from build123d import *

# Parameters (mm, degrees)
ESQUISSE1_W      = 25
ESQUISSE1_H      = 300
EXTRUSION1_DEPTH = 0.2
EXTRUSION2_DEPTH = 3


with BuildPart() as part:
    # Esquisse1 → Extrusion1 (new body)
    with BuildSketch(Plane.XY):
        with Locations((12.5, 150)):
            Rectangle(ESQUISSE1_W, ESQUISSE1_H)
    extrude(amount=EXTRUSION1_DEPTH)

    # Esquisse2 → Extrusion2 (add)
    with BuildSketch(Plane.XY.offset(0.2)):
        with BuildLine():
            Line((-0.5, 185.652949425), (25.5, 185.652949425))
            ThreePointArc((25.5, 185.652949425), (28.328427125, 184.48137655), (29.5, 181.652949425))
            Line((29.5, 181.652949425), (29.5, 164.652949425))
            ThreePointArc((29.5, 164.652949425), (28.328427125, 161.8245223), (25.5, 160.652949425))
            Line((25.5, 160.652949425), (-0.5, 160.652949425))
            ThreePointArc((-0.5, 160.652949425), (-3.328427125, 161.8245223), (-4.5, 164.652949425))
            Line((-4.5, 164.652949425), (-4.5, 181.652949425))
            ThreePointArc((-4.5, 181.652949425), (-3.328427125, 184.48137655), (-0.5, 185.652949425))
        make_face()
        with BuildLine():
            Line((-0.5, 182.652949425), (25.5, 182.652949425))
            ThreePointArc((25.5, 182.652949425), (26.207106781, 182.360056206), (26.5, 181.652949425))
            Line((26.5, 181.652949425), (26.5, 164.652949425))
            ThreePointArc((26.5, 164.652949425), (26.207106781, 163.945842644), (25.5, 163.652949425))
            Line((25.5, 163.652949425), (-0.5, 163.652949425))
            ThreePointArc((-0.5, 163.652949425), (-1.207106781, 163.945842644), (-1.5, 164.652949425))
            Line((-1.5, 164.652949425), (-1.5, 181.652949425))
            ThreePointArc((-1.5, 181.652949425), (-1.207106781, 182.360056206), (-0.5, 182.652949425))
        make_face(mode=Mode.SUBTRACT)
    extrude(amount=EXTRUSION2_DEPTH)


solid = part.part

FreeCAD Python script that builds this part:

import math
import FreeCAD as App
import Part
import Sketcher

doc = App.newDocument("Part")
body = doc.addObject("PartDesign::Body", "Body")

sketch1 = body.newObject("Sketcher::SketchObject", "Sketch")
sketch1.AttachmentSupport = (doc.getObject("XY_Plane"), [""])
sketch1.MapMode = "FlatFace"
sketch1.addGeometry([
    Part.LineSegment(App.Vector(0, 300, 0), App.Vector(0, 0, 0)),
    Part.LineSegment(App.Vector(0, 0, 0), App.Vector(25, 0, 0)),
    Part.LineSegment(App.Vector(25, 0, 0), App.Vector(25, 300, 0)),
    Part.LineSegment(App.Vector(25, 300, 0), App.Vector(0, 300, 0)),
], False)
sketch1.addConstraint([
    Sketcher.Constraint("Coincident", 0, 2, 1, 1),
    Sketcher.Constraint("Coincident", 1, 2, 2, 1),
    Sketcher.Constraint("Coincident", 2, 2, 3, 1),
    Sketcher.Constraint("Coincident", 3, 2, 0, 1),
    Sketcher.Constraint("Vertical", 0),
    Sketcher.Constraint("Horizontal", 1),
    Sketcher.Constraint("Vertical", 2),
    Sketcher.Constraint("Horizontal", 3),
    Sketcher.Constraint("Coincident", 0, 2, -1, 1),
    Sketcher.Constraint("DistanceX", 1, 1, 1, 2, 25.0),
    Sketcher.Constraint("DistanceY", 0, 2, 0, 1, 300.0),
])
pad1 = body.newObject("PartDesign::Pad", "Pad")
pad1.Profile = sketch1
pad1.Length = 0.2

sketch2 = body.newObject("Sketcher::SketchObject", "Sketch001")
sketch2.AttachmentSupport = (doc.getObject("XY_Plane"), [""])
sketch2.MapMode = "FlatFace"
sketch2.AttachmentOffset = App.Placement(App.Vector(0, 0, 0.2), App.Rotation())
sketch2.addGeometry([
    Part.LineSegment(App.Vector(25.5, 185.7, 0), App.Vector(-0.5, 185.7, 0)),
    Part.ArcOfCircle(Part.Circle(App.Vector(-0.5, 181.7, 0), App.Vector(0, 0, 1), 4), math.radians(90), math.radians(180)),
    Part.LineSegment(App.Vector(-4.5, 181.7, 0), App.Vector(-4.5, 164.7, 0)),
    Part.ArcOfCircle(Part.Circle(App.Vector(-0.5, 164.7, 0), App.Vector(0, 0, 1), 4), math.radians(180), math.radians(270)),
    Part.LineSegment(App.Vector(-0.5, 160.7, 0), App.Vector(25.5, 160.7, 0)),
    Part.ArcOfCircle(Part.Circle(App.Vector(25.5, 164.7, 0), App.Vector(0, 0, 1), 4), math.radians(-90), math.radians(0)),
    Part.LineSegment(App.Vector(29.5, 164.7, 0), App.Vector(29.5, 181.7, 0)),
    Part.ArcOfCircle(Part.Circle(App.Vector(25.5, 181.7, 0), App.Vector(0, 0, 1), 4), math.radians(0), math.radians(90)),
    Part.LineSegment(App.Vector(-0.5, 182.7, 0), App.Vector(25.5, 182.7, 0)),
    Part.ArcOfCircle(Part.Circle(App.Vector(25.5, 181.7, 0), App.Vector(0, 0, 1), 1), math.radians(0), math.radians(90)),
    Part.LineSegment(App.Vector(26.5, 181.7, 0), App.Vector(26.5, 164.7, 0)),
    Part.ArcOfCircle(Part.Circle(App.Vector(25.5, 164.7, 0), App.Vector(0, 0, 1), 1), math.radians(-90), math.radians(0)),
    Part.LineSegment(App.Vector(25.5, 163.7, 0), App.Vector(-0.5, 163.7, 0)),
    Part.ArcOfCircle(Part.Circle(App.Vector(-0.5, 164.7, 0), App.Vector(0, 0, 1), 1), math.radians(-180), math.radians(-90)),
    Part.LineSegment(App.Vector(-1.5, 164.7, 0), App.Vector(-1.5, 181.7, 0)),
    Part.ArcOfCircle(Part.Circle(App.Vector(-0.5, 181.7, 0), App.Vector(0, 0, 1), 1), math.radians(90), math.radians(180)),
], False)
sketch2.addConstraint([
    Sketcher.Constraint("Tangent", 0, 2, 1, 1),
    Sketcher.Constraint("Tangent", 1, 2, 2, 1),
    Sketcher.Constraint("Tangent", 2, 2, 3, 1),
    Sketcher.Constraint("Tangent", 3, 2, 4, 1),
    Sketcher.Constraint("Tangent", 4, 2, 5, 1),
    Sketcher.Constraint("Tangent", 5, 2, 6, 1),
    Sketcher.Constraint("Tangent", 6, 2, 7, 1),
    Sketcher.Constraint("Tangent", 7, 2, 0, 1),
    Sketcher.Constraint("Tangent", 8, 2, 9, 2),
    Sketcher.Constraint("Tangent", 9, 1, 10, 1),
    Sketcher.Constraint("Tangent", 10, 2, 11, 2),
    Sketcher.Constraint("Tangent", 11, 1, 12, 1),
    Sketcher.Constraint("Tangent", 12, 2, 13, 2),
    Sketcher.Constraint("Tangent", 13, 1, 14, 1),
    Sketcher.Constraint("Tangent", 14, 2, 15, 2),
    Sketcher.Constraint("Tangent", 15, 1, 8, 1),
    Sketcher.Constraint("Horizontal", 0),
    Sketcher.Constraint("Vertical", 2),
    Sketcher.Constraint("Horizontal", 4),
    Sketcher.Constraint("Vertical", 6),
    Sketcher.Constraint("Horizontal", 8),
    Sketcher.Constraint("Vertical", 10),
    Sketcher.Constraint("Horizontal", 12),
    Sketcher.Constraint("Vertical", 14),
    Sketcher.Constraint("Coincident", 9, 3, 7, 3),
    Sketcher.Constraint("Coincident", 11, 3, 5, 3),
    Sketcher.Constraint("Coincident", 13, 3, 3, 3),
    Sketcher.Constraint("Equal", 1, 3),
    Sketcher.Constraint("Equal", 3, 5),
    Sketcher.Constraint("Equal", 5, 7),
    Sketcher.Constraint("Equal", 13, 15),
    Sketcher.Constraint("Radius", 1, 4.0),
    Sketcher.Constraint("Radius", 9, 1.0),
    Sketcher.Constraint("DistanceX", 0, 2, 0, 1, 26.0),
    Sketcher.Constraint("DistanceY", 2, 2, 2, 1, 17.0),
    Sketcher.Constraint("DistanceX", 1, 3, -1, 1, 0.5),
    Sketcher.Constraint("DistanceY", -1, 1, 1, 3, 181.652949),
])
pad2 = body.newObject("PartDesign::Pad", "Pad001")
pad2.Profile = sketch2
pad2.Length = 3

doc.recompute()
